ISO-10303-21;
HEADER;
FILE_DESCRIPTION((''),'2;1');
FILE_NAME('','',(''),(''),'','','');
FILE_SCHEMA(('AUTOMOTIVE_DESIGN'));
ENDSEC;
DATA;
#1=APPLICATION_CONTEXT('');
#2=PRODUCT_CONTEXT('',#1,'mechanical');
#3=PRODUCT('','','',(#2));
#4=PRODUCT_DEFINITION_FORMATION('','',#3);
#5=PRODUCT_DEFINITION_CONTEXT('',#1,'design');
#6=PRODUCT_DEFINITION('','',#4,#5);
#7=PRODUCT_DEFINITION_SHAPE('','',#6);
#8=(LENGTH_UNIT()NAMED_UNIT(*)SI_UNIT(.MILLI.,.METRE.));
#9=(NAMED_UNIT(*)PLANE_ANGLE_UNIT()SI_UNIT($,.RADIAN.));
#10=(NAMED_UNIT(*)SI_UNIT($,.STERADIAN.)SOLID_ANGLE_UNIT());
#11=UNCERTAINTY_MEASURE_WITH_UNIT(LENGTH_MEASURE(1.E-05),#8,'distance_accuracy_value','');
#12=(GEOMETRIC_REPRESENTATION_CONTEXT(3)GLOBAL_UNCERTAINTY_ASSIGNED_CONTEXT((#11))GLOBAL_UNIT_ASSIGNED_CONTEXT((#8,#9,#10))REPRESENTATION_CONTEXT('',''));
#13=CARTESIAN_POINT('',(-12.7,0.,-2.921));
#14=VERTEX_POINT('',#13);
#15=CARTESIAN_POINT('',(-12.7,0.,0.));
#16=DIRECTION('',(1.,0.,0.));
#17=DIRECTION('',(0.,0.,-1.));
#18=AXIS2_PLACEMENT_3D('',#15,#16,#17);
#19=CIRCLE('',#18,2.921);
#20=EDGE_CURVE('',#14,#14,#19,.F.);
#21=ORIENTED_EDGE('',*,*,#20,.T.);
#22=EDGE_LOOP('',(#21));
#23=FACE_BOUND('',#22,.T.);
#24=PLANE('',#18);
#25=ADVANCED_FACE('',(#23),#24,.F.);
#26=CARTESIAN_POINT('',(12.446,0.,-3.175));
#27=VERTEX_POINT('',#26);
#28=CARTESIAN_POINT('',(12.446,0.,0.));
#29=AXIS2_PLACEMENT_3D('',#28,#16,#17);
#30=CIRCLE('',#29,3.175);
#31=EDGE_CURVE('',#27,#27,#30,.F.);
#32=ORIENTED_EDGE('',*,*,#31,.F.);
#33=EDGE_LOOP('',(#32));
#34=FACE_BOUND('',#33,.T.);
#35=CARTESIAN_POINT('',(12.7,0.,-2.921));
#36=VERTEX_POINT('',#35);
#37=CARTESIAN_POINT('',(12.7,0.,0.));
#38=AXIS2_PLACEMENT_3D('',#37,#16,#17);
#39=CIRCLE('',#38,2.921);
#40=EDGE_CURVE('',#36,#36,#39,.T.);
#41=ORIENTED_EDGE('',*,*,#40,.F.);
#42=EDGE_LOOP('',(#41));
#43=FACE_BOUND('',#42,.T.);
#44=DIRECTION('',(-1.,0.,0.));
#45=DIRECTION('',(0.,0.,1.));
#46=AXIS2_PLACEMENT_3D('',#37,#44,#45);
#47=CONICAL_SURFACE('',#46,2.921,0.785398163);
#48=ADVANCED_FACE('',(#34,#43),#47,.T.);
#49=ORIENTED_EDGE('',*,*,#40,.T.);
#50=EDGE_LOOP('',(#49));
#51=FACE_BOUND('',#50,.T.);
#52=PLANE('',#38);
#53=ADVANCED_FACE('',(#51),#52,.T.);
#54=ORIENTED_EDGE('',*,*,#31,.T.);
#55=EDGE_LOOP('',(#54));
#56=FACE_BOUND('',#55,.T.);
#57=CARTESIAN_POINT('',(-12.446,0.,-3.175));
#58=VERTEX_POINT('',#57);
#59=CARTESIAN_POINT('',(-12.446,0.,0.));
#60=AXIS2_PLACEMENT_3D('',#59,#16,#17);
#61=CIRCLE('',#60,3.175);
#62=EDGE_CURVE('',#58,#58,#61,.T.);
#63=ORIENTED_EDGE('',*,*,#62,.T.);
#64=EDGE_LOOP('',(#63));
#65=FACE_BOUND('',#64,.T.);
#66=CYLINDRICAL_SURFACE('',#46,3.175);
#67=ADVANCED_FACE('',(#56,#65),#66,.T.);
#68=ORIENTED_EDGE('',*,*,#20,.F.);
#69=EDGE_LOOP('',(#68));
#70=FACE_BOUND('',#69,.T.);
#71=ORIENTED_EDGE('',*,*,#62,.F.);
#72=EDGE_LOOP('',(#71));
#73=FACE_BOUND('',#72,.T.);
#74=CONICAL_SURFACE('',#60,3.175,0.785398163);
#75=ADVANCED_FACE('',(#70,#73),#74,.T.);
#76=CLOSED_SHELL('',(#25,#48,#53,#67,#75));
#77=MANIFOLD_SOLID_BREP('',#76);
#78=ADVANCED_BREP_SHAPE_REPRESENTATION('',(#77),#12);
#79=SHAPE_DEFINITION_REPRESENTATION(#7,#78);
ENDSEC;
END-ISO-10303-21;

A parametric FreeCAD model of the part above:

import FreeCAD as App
import Part
import Sketcher

V = App.Vector
Q = App.Units.Quantity


def edges_at(feature, points):
    """Names of the edges that pass closest to the given points."""
    edges = feature.Shape.Edges
    near = lambda p: min(range(len(edges)), key=lambda i: edges[i].distToShape(Part.Vertex(*p))[0])
    return sorted({f"Edge{near(p) + 1}" for p in points})

doc = App.newDocument("Part")
body = doc.addObject("PartDesign::Body", "Body")

# Sketch on YZ plane
sketch1 = doc.addObject("Sketcher::SketchObject", "Sketch")
body.addObject(sketch1)
sketch1.AttachmentSupport = (doc.YZ_Plane, [""])
sketch1.MapMode = "FlatFace"
sketch1.addGeometry(Part.Circle(V(0, 0, 0), V(0, 0, 1), 3.2), False)
sketch1.addConstraint(Sketcher.Constraint("Coincident", 0, 3, -1, 1))
sketch1.addConstraint(Sketcher.Constraint("Diameter", 0, Q("0.25 in")))
pad1 = doc.addObject("PartDesign::Pad", "Pad")
body.addObject(pad1)
pad1.Profile = sketch1
pad1.Length = Q("1 in")
pad1.Midplane = True
doc.recompute()

chamfer = doc.addObject("PartDesign::Chamfer", "Chamfer")
body.addObject(chamfer)
chamfer.Base = (pad1, edges_at(pad1, [(-12.7, 0, 3.175), (12.7, 0, 3.175)]))
chamfer.Size = Q("0.01 in")

doc.recompute()
